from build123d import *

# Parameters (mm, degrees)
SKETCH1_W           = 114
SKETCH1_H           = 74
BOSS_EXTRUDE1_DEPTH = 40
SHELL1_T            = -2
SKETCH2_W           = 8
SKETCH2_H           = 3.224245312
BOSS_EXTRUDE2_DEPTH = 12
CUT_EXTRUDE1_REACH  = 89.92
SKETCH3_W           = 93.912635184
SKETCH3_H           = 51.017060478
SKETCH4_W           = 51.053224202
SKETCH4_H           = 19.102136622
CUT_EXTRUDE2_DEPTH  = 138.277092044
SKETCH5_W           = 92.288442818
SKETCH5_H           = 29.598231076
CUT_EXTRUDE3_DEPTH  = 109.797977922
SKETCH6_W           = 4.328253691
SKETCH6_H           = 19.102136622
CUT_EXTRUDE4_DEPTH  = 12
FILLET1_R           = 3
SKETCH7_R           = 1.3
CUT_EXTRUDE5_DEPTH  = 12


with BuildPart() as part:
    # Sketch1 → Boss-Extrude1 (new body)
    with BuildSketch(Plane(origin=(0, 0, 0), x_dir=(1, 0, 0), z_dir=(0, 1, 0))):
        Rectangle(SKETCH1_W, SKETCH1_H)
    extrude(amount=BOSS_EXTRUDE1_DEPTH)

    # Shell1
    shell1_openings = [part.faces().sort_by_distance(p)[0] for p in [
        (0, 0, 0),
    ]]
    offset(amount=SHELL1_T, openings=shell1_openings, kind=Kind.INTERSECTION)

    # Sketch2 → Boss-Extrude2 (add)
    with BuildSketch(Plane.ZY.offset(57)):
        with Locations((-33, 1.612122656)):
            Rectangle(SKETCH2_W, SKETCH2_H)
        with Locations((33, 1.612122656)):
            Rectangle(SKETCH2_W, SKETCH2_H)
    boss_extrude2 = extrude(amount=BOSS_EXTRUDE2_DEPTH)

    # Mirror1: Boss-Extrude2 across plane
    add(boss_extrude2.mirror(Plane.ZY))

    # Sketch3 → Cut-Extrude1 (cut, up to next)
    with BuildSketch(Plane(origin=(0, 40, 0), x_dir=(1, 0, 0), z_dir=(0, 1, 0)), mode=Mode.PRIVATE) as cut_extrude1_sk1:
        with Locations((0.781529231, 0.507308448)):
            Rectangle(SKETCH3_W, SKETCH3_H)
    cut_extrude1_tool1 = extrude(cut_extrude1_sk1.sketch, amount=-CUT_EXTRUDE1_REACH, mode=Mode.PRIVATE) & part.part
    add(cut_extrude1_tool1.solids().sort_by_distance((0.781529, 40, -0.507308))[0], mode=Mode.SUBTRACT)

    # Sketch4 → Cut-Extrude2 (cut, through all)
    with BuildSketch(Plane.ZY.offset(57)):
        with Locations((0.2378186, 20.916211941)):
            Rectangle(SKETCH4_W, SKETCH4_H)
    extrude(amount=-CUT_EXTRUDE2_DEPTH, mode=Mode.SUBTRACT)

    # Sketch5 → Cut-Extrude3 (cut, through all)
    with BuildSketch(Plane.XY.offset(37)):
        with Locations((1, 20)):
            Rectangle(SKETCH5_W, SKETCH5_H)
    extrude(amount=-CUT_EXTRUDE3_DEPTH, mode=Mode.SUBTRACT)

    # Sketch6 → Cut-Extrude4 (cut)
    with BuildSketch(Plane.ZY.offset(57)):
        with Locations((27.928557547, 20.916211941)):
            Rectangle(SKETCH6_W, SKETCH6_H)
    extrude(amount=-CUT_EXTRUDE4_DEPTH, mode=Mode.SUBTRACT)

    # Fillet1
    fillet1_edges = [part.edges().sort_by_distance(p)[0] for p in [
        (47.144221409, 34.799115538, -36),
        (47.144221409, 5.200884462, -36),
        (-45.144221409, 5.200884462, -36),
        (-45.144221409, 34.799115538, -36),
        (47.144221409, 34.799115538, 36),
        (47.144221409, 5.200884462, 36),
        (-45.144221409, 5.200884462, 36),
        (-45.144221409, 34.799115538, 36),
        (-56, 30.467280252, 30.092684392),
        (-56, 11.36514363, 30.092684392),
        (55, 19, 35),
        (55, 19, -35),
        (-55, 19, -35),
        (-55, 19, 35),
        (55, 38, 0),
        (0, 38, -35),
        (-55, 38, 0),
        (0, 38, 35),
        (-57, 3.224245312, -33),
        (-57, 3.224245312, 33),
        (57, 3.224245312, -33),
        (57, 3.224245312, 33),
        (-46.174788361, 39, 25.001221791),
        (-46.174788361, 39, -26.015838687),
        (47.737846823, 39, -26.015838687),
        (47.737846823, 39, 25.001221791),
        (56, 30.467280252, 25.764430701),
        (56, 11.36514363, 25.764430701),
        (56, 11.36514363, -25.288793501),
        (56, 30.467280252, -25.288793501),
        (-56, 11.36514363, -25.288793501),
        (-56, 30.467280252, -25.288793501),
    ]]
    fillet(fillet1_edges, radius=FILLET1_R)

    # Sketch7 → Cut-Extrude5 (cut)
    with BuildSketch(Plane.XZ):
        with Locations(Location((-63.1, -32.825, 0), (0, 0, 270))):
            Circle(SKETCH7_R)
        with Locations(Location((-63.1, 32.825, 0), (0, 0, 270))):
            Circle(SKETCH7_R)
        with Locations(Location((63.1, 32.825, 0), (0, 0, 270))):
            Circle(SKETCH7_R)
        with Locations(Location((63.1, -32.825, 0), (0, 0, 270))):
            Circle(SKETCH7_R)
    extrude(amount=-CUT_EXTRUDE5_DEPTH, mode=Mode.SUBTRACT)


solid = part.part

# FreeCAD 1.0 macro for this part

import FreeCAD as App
import Part
import Sketcher
from FreeCAD import Vector
Q = App.Units.Quantity


def edges_at(feature, points):
    """Names of the edges that pass closest to the given points."""
    edges = feature.Shape.Edges
    near = lambda p: min(range(len(edges)), key=lambda i: edges[i].distToShape(Part.Vertex(*p))[0])
    return sorted({f"Edge{near(p) + 1}" for p in points})


def faces_at(feature, points):
    """Names of the faces that lie closest to the given points."""
    faces = feature.Shape.Faces
    near = lambda p: min(range(len(faces)), key=lambda i: faces[i].distToShape(Part.Vertex(*p))[0])
    return sorted({f"Face{near(p) + 1}" for p in points})


def add_polygon(sketch, points):
    """Adds a closed chain of lines whose ends are joined by coincident constraints."""
    first, n = sketch.GeometryCount, len(points)
    for a, b in zip(points, points[1:] + points[:1]):
        sketch.addGeometry(Part.LineSegment(App.Vector(*a, 0), App.Vector(*b, 0)), False)
    for i in range(n):
        sketch.addConstraint(Sketcher.Constraint("Coincident", first + i, 2, first + (i + 1) % n, 1))

doc = App.newDocument("Part")
body = doc.addObject("PartDesign::Body", "Body")

sketch1 = body.newObject("Sketcher::SketchObject", "Sketch")
sketch1.AttachmentSupport = (doc.getObject("XZ_Plane"), [""])
sketch1.MapMode = "FlatFace"
add_polygon(sketch1, [(-57, -37), (-57, 37), (57, 37), (57, -37)])
sketch1.addConstraint([
    Sketcher.Constraint("Vertical", 0),
    Sketcher.Constraint("Horizontal", 1),
    Sketcher.Constraint("Vertical", 2),
    Sketcher.Constraint("Horizontal", 3),
    Sketcher.Constraint("Symmetric", 0, 2, 2, 2, -1, 1),
    Sketcher.Constraint("DistanceX", 1, 1, 1, 2, Q("114 mm")),
    Sketcher.Constraint("DistanceY", 0, 1, 0, 2, Q("74 mm")),
])
pad1 = body.newObject("PartDesign::Pad", "Pad")
pad1.Profile = sketch1
pad1.Length = 40
pad1.Reversed = True
doc.recompute()

thickness = body.newObject("PartDesign::Thickness", "Thickness")
thickness.Base = (pad1, faces_at(pad1, [(0, 0, 0)]))
thickness.Value = 2
thickness.Reversed = True
thickness.Join = "Intersection"

sketch2 = body.newObject("Sketcher::SketchObject", "Sketch001")
sketch2.AttachmentSupport = (doc.getObject("YZ_Plane"), [""])
sketch2.MapMode = "FlatFace"
sketch2.AttachmentOffset = App.Placement(Vector(0, 0, -57), App.Rotation())
add_polygon(sketch2, [(3.2, -37), (0, -37), (0, -29), (3.2, -29)])
add_polygon(sketch2, [(3.2, 29), (0, 29), (0, 37), (3.2, 37)])
sketch2.addConstraint([
    Sketcher.Constraint("Horizontal", 0),
    Sketcher.Constraint("Vertical", 1),
    Sketcher.Constraint("Horizontal", 2),
    Sketcher.Constraint("Vertical", 3),
    Sketcher.Constraint("Horizontal", 4),
    Sketcher.Constraint("Vertical", 5),
    Sketcher.Constraint("Horizontal", 6),
    Sketcher.Constraint("Vertical", 7),
    Sketcher.Constraint("Symmetric", 1, 2, 4, 2, -1, 1),
    Sketcher.Constraint("Symmetric", 0, 2, 5, 2, -1),
    Sketcher.Constraint("Vertical", 3, 2, 6, 2),
    Sketcher.Constraint("DistanceY", 1, 1, 1, 2, Q("8 mm")),
    Sketcher.Constraint("DistanceY", 0, 2, -1, 1, Q("37 mm")),
    Sketcher.Constraint("DistanceX", 0, 2, 0, 1, Q("3.224245 mm")),
])
pad2 = body.newObject("PartDesign::Pad", "Pad001")
pad2.Profile = sketch2
pad2.Length = 12
pad2.Reversed = True
doc.recompute()

mirrored = body.newObject("PartDesign::Mirrored", "Mirrored")
mirrored.Originals = [pad2]
mirrored.MirrorPlane = (doc.getObject("YZ_Plane"), [""])
body.Tip = mirrored

sketch3 = body.newObject("Sketcher::SketchObject", "Sketch002")
sketch3.AttachmentSupport = (doc.getObject("XZ_Plane"), [""])
sketch3.MapMode = "FlatFace"
sketch3.AttachmentOffset = App.Placement(Vector(0, 0, -40), App.Rotation())
add_polygon(sketch3, [(-46, -26), (-46, 25), (48, 25), (48, -26)])
sketch3.addConstraint([
    Sketcher.Constraint("Vertical", 0),
    Sketcher.Constraint("Horizontal", 1),
    Sketcher.Constraint("Vertical", 2),
    Sketcher.Constraint("Horizontal", 3),
    Sketcher.Constraint("DistanceY", 0, 1, 0, 2, Q("51.01706 mm")),
    Sketcher.Constraint("DistanceX", 1, 1, 1, 2, Q("93.912635 mm")),
    Sketcher.Constraint("DistanceX", 0, 2, -1, 1, Q("46.174788 mm")),
    Sketcher.Constraint("DistanceY", -1, 1, 0, 2, Q("25.001222 mm")),
])
pocket1 = body.newObject("PartDesign::Pocket", "Pocket")
pocket1.Profile = sketch3
pocket1.Type = "UpToFirst"
pocket1.Reversed = True

sketch4 = body.newObject("Sketcher::SketchObject", "Sketch003")
sketch4.AttachmentSupport = (doc.getObject("YZ_Plane"), [""])
sketch4.MapMode = "FlatFace"
sketch4.AttachmentOffset = App.Placement(Vector(0, 0, -57), App.Rotation())
add_polygon(sketch4, [(30, -25), (11, -25), (11, 26), (30, 26)])
sketch4.addConstraint([
    Sketcher.Constraint("Horizontal", 0),
    Sketcher.Constraint("Vertical", 1),
    Sketcher.Constraint("Horizontal", 2),
    Sketcher.Constraint("Vertical", 3),
    Sketcher.Constraint("DistanceX", 0, 2, 0, 1, Q("19.102137 mm")),
    Sketcher.Constraint("DistanceY", 1, 1, 1, 2, Q("51.053224 mm")),
    Sketcher.Constraint("DistanceY", -1, 1, 1, 2, Q("25.764431 mm")),
    Sketcher.Constraint("DistanceX", -1, 1, 2, 2, Q("30.46728 mm")),
])
pocket2 = body.newObject("PartDesign::Pocket", "Pocket001")
pocket2.Profile = sketch4
pocket2.Type = "ThroughAll"
pocket2.Reversed = True

sketch5 = body.newObject("Sketcher::SketchObject", "Sketch004")
sketch5.AttachmentSupport = (doc.getObject("XY_Plane"), [""])
sketch5.MapMode = "FlatFace"
sketch5.AttachmentOffset = App.Placement(Vector(0, 0, 37), App.Rotation())
add_polygon(sketch5, [(-45, 35), (-45, 5), (47, 5), (47, 35)])
sketch5.addConstraint([
    Sketcher.Constraint("Vertical", 0),
    Sketcher.Constraint("Horizontal", 1),
    Sketcher.Constraint("Vertical", 2),
    Sketcher.Constraint("Horizontal", 3),
    Sketcher.Constraint("DistanceY", 0, 2, 0, 1, Q("29.598231 mm")),
    Sketcher.Constraint("DistanceX", 1, 1, 1, 2, Q("92.288443 mm")),
    Sketcher.Constraint("DistanceX", 0, 2, -1, 1, Q("45.144221 mm")),
    Sketcher.Constraint("DistanceY", -1, 1, 0, 2, Q("5.200884 mm")),
])
pocket3 = body.newObject("PartDesign::Pocket", "Pocket002")
pocket3.Profile = sketch5
pocket3.Type = "ThroughAll"

sketch6 = body.newObject("Sketcher::SketchObject", "Sketch005")
sketch6.AttachmentSupport = (doc.getObject("YZ_Plane"), [""])
sketch6.MapMode = "FlatFace"
sketch6.AttachmentOffset = App.Placement(Vector(0, 0, -57), App.Rotation())
add_polygon(sketch6, [(30.5, 25.8), (11.4, 25.8), (11.4, 30.1), (30.5, 30.1)])
sketch6.addConstraint([
    Sketcher.Constraint("Horizontal", 0),
    Sketcher.Constraint("Vertical", 1),
    Sketcher.Constraint("Horizontal", 2),
    Sketcher.Constraint("Vertical", 3),
    Sketcher.Constraint("DistanceX", 0, 2, 0, 1, Q("19.102137 mm")),
    Sketcher.Constraint("DistanceY", 1, 1, 1, 2, Q("4.328254 mm")),
    Sketcher.Constraint("DistanceY", -1, 1, 0, 2, Q("25.764431 mm")),
    Sketcher.Constraint("DistanceX", -1, 1, 2, 2, Q("30.46728 mm")),
])
pocket4 = body.newObject("PartDesign::Pocket", "Pocket003")
pocket4.Profile = sketch6
pocket4.Length = 12
pocket4.Reversed = True
doc.recompute()

fillet = body.newObject("PartDesign::Fillet", "Fillet")
fillet.Base = (pocket4, edges_at(pocket4, [
    (47.144, 34.799, -36),
    (47.144, 5.201, -36),
    (-45.144, 5.201, -36),
    (-45.144, 34.799, -36),
    (47.144, 34.799, 36),
    (47.144, 5.201, 36),
    (-45.144, 5.201, 36),
    (-45.144, 34.799, 36),
    (-56, 30.467, 30.093),
    (-56, 11.365, 30.093),
    (55, 19, 35),
    (55, 19, -35),
    (-55, 19, -35),
    (-55, 19, 35),
    (55, 38, 0),
    (0, 38, -35),
    (-55, 38, 0),
    (0, 38, 35),
    (-57, 3.224, -33),
    (-57, 3.224, 33),
    (57, 3.224, -33),
    (57, 3.224, 33),
    (-46.175, 39, 25.001),
    (-46.175, 39, -26.016),
    (47.738, 39, -26.016),
    (47.738, 39, 25.001),
    (56, 30.467, 25.764),
    (56, 11.365, 25.764),
    (56, 11.365, -25.289),
    (56, 30.467, -25.289),
    (-56, 11.365, -25.289),
    (-56, 30.467, -25.289),
]))
fillet.Radius = 3

sketch7 = body.newObject("Sketcher::SketchObject", "Sketch006")
sketch7.AttachmentSupport = (doc.getObject("XZ_Plane"), [""])
sketch7.MapMode = "FlatFace"
sketch7.addGeometry([
    Part.Circle(Vector(-63.1, -32.8, 0), Vector(0, 0, 1), 1.3),
    Part.Circle(Vector(-63.1, 32.8, 0), Vector(0, 0, 1), 1.3),
    Part.Circle(Vector(63.1, 32.8, 0), Vector(0, 0, 1), 1.3),
    Part.Circle(Vector(63.1, -32.8, 0), Vector(0, 0, 1), 1.3),
], False)
sketch7.addConstraint([
    Sketcher.Constraint("Equal", 0, 1),
    Sketcher.Constraint("Equal", 1, 2),
    Sketcher.Constraint("Equal", 2, 3),
    Sketcher.Constraint("Symmetric", 0, 3, 2, 3, -1, 1),
    Sketcher.Constraint("Symmetric", 1, 3, 3, 3, -1, 1),
    Sketcher.Constraint("Symmetric", 1, 3, 2, 3, -2),
    Sketcher.Constraint("Diameter", 0, Q("2.6 mm")),
    Sketcher.Constraint("DistanceX", 0, 3, -1, 1, Q("63.1 mm")),
    Sketcher.Constraint("DistanceY", 0, 3, 1, 3, Q("65.65 mm")),
])
pocket5 = body.newObject("PartDesign::Pocket", "Pocket004")
pocket5.Profile = sketch7
pocket5.Length = 12

doc.recompute()
